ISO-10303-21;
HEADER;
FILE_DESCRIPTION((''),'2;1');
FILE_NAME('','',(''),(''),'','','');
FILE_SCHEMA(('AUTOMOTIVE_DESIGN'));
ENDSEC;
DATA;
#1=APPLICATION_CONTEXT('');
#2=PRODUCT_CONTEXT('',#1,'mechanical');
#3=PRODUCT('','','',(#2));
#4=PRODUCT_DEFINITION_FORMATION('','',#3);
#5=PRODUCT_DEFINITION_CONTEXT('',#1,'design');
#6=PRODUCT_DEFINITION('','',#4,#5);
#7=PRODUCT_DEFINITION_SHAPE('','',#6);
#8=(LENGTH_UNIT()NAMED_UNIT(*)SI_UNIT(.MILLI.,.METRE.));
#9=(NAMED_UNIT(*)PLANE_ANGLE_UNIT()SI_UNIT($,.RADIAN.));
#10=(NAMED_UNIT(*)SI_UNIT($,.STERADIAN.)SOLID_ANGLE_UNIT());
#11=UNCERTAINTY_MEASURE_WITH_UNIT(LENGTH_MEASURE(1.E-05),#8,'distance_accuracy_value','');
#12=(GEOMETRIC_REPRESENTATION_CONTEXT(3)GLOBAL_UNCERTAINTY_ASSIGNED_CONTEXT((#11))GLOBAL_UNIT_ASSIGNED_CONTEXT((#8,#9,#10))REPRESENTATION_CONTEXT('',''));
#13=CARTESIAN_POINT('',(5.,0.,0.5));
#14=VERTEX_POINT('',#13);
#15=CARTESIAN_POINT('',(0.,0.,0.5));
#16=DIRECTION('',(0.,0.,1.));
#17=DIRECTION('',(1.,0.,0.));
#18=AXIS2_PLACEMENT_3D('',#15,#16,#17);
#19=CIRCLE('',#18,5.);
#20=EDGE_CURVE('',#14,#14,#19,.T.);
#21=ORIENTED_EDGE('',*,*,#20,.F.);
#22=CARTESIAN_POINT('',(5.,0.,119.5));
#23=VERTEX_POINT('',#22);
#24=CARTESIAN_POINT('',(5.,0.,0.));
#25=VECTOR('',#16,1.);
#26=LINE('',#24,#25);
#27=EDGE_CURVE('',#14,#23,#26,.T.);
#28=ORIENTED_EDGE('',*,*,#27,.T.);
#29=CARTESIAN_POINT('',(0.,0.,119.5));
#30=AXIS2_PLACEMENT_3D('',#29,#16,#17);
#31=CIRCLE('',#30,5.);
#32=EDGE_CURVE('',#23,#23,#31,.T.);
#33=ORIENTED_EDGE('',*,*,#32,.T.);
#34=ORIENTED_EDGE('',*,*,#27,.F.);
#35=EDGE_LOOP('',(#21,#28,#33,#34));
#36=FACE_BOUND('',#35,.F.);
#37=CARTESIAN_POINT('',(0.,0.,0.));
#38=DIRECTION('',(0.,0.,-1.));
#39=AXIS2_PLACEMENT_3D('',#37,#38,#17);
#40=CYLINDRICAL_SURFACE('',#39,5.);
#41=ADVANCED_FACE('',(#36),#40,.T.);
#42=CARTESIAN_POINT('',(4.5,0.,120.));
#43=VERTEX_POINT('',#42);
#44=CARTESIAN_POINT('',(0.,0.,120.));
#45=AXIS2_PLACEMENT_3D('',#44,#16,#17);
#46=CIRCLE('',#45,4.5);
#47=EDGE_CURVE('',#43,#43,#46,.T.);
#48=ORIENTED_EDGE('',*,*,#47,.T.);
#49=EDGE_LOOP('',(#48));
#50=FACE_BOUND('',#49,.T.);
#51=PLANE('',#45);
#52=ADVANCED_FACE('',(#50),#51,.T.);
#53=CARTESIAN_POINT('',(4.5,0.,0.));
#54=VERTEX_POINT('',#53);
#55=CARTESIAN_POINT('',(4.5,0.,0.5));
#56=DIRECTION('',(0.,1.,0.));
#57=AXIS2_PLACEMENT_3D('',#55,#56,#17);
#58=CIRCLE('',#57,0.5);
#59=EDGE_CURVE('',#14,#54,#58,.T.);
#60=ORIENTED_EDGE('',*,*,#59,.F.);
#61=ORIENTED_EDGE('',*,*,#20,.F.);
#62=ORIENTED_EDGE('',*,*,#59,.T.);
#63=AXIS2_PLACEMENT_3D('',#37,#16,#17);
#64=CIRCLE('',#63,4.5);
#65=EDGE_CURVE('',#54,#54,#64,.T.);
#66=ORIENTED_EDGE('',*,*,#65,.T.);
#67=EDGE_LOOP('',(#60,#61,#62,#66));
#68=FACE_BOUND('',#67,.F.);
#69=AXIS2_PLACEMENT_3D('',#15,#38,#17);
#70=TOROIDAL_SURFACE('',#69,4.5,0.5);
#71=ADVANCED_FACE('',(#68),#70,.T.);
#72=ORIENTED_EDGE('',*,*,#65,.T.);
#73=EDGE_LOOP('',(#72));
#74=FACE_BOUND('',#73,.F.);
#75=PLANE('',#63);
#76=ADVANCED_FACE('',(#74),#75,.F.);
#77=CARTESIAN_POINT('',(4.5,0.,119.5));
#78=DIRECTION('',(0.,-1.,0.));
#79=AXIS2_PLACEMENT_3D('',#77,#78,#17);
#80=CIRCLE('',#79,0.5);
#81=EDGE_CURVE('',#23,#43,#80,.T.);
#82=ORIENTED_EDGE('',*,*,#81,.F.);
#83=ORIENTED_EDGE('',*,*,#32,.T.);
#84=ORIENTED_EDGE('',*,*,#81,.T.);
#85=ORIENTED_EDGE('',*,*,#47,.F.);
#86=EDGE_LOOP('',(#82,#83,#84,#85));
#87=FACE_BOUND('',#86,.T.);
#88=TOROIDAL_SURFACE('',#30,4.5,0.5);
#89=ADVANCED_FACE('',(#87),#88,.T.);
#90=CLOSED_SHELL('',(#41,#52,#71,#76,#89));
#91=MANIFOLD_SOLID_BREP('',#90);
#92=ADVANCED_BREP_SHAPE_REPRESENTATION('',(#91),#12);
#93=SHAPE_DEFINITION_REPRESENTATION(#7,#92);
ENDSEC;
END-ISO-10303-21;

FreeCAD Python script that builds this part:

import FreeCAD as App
import Part
import Sketcher

V = App.Vector
Q = App.Units.Quantity


def edges_at(feature, points):
    """Names of the edges that pass closest to the given points."""
    edges = feature.Shape.Edges
    near = lambda p: min(range(len(edges)), key=lambda i: edges[i].distToShape(Part.Vertex(*p))[0])
    return sorted({f"Edge{near(p) + 1}" for p in points})

doc = App.newDocument("Part")
body = doc.addObject("PartDesign::Body", "Body")

# Sketch on XY plane
sketch1 = body.newObject("Sketcher::SketchObject", "Sketch")
sketch1.AttachmentSupport = (doc.getObject("XY_Plane"), [""])
sketch1.MapMode = "FlatFace"
sketch1.addGeometry(Part.Circle(V(0, 0, 0), V(0, 0, 1), 5), False)
sketch1.addConstraint([
    Sketcher.Constraint("Coincident", 0, 3, -1, 1),
    Sketcher.Constraint("Diameter", 0, Q("10 mm")),
])
pad1 = body.newObject("PartDesign::Pad", "Pad")
pad1.Profile = sketch1
pad1.Length = 120
doc.recompute()

fillet = body.newObject("PartDesign::Fillet", "Fillet")
fillet.Base = (pad1, edges_at(pad1, [(-5, 0, 120), (-5, 0, 0)]))
fillet.Radius = 0.5

doc.recompute()
